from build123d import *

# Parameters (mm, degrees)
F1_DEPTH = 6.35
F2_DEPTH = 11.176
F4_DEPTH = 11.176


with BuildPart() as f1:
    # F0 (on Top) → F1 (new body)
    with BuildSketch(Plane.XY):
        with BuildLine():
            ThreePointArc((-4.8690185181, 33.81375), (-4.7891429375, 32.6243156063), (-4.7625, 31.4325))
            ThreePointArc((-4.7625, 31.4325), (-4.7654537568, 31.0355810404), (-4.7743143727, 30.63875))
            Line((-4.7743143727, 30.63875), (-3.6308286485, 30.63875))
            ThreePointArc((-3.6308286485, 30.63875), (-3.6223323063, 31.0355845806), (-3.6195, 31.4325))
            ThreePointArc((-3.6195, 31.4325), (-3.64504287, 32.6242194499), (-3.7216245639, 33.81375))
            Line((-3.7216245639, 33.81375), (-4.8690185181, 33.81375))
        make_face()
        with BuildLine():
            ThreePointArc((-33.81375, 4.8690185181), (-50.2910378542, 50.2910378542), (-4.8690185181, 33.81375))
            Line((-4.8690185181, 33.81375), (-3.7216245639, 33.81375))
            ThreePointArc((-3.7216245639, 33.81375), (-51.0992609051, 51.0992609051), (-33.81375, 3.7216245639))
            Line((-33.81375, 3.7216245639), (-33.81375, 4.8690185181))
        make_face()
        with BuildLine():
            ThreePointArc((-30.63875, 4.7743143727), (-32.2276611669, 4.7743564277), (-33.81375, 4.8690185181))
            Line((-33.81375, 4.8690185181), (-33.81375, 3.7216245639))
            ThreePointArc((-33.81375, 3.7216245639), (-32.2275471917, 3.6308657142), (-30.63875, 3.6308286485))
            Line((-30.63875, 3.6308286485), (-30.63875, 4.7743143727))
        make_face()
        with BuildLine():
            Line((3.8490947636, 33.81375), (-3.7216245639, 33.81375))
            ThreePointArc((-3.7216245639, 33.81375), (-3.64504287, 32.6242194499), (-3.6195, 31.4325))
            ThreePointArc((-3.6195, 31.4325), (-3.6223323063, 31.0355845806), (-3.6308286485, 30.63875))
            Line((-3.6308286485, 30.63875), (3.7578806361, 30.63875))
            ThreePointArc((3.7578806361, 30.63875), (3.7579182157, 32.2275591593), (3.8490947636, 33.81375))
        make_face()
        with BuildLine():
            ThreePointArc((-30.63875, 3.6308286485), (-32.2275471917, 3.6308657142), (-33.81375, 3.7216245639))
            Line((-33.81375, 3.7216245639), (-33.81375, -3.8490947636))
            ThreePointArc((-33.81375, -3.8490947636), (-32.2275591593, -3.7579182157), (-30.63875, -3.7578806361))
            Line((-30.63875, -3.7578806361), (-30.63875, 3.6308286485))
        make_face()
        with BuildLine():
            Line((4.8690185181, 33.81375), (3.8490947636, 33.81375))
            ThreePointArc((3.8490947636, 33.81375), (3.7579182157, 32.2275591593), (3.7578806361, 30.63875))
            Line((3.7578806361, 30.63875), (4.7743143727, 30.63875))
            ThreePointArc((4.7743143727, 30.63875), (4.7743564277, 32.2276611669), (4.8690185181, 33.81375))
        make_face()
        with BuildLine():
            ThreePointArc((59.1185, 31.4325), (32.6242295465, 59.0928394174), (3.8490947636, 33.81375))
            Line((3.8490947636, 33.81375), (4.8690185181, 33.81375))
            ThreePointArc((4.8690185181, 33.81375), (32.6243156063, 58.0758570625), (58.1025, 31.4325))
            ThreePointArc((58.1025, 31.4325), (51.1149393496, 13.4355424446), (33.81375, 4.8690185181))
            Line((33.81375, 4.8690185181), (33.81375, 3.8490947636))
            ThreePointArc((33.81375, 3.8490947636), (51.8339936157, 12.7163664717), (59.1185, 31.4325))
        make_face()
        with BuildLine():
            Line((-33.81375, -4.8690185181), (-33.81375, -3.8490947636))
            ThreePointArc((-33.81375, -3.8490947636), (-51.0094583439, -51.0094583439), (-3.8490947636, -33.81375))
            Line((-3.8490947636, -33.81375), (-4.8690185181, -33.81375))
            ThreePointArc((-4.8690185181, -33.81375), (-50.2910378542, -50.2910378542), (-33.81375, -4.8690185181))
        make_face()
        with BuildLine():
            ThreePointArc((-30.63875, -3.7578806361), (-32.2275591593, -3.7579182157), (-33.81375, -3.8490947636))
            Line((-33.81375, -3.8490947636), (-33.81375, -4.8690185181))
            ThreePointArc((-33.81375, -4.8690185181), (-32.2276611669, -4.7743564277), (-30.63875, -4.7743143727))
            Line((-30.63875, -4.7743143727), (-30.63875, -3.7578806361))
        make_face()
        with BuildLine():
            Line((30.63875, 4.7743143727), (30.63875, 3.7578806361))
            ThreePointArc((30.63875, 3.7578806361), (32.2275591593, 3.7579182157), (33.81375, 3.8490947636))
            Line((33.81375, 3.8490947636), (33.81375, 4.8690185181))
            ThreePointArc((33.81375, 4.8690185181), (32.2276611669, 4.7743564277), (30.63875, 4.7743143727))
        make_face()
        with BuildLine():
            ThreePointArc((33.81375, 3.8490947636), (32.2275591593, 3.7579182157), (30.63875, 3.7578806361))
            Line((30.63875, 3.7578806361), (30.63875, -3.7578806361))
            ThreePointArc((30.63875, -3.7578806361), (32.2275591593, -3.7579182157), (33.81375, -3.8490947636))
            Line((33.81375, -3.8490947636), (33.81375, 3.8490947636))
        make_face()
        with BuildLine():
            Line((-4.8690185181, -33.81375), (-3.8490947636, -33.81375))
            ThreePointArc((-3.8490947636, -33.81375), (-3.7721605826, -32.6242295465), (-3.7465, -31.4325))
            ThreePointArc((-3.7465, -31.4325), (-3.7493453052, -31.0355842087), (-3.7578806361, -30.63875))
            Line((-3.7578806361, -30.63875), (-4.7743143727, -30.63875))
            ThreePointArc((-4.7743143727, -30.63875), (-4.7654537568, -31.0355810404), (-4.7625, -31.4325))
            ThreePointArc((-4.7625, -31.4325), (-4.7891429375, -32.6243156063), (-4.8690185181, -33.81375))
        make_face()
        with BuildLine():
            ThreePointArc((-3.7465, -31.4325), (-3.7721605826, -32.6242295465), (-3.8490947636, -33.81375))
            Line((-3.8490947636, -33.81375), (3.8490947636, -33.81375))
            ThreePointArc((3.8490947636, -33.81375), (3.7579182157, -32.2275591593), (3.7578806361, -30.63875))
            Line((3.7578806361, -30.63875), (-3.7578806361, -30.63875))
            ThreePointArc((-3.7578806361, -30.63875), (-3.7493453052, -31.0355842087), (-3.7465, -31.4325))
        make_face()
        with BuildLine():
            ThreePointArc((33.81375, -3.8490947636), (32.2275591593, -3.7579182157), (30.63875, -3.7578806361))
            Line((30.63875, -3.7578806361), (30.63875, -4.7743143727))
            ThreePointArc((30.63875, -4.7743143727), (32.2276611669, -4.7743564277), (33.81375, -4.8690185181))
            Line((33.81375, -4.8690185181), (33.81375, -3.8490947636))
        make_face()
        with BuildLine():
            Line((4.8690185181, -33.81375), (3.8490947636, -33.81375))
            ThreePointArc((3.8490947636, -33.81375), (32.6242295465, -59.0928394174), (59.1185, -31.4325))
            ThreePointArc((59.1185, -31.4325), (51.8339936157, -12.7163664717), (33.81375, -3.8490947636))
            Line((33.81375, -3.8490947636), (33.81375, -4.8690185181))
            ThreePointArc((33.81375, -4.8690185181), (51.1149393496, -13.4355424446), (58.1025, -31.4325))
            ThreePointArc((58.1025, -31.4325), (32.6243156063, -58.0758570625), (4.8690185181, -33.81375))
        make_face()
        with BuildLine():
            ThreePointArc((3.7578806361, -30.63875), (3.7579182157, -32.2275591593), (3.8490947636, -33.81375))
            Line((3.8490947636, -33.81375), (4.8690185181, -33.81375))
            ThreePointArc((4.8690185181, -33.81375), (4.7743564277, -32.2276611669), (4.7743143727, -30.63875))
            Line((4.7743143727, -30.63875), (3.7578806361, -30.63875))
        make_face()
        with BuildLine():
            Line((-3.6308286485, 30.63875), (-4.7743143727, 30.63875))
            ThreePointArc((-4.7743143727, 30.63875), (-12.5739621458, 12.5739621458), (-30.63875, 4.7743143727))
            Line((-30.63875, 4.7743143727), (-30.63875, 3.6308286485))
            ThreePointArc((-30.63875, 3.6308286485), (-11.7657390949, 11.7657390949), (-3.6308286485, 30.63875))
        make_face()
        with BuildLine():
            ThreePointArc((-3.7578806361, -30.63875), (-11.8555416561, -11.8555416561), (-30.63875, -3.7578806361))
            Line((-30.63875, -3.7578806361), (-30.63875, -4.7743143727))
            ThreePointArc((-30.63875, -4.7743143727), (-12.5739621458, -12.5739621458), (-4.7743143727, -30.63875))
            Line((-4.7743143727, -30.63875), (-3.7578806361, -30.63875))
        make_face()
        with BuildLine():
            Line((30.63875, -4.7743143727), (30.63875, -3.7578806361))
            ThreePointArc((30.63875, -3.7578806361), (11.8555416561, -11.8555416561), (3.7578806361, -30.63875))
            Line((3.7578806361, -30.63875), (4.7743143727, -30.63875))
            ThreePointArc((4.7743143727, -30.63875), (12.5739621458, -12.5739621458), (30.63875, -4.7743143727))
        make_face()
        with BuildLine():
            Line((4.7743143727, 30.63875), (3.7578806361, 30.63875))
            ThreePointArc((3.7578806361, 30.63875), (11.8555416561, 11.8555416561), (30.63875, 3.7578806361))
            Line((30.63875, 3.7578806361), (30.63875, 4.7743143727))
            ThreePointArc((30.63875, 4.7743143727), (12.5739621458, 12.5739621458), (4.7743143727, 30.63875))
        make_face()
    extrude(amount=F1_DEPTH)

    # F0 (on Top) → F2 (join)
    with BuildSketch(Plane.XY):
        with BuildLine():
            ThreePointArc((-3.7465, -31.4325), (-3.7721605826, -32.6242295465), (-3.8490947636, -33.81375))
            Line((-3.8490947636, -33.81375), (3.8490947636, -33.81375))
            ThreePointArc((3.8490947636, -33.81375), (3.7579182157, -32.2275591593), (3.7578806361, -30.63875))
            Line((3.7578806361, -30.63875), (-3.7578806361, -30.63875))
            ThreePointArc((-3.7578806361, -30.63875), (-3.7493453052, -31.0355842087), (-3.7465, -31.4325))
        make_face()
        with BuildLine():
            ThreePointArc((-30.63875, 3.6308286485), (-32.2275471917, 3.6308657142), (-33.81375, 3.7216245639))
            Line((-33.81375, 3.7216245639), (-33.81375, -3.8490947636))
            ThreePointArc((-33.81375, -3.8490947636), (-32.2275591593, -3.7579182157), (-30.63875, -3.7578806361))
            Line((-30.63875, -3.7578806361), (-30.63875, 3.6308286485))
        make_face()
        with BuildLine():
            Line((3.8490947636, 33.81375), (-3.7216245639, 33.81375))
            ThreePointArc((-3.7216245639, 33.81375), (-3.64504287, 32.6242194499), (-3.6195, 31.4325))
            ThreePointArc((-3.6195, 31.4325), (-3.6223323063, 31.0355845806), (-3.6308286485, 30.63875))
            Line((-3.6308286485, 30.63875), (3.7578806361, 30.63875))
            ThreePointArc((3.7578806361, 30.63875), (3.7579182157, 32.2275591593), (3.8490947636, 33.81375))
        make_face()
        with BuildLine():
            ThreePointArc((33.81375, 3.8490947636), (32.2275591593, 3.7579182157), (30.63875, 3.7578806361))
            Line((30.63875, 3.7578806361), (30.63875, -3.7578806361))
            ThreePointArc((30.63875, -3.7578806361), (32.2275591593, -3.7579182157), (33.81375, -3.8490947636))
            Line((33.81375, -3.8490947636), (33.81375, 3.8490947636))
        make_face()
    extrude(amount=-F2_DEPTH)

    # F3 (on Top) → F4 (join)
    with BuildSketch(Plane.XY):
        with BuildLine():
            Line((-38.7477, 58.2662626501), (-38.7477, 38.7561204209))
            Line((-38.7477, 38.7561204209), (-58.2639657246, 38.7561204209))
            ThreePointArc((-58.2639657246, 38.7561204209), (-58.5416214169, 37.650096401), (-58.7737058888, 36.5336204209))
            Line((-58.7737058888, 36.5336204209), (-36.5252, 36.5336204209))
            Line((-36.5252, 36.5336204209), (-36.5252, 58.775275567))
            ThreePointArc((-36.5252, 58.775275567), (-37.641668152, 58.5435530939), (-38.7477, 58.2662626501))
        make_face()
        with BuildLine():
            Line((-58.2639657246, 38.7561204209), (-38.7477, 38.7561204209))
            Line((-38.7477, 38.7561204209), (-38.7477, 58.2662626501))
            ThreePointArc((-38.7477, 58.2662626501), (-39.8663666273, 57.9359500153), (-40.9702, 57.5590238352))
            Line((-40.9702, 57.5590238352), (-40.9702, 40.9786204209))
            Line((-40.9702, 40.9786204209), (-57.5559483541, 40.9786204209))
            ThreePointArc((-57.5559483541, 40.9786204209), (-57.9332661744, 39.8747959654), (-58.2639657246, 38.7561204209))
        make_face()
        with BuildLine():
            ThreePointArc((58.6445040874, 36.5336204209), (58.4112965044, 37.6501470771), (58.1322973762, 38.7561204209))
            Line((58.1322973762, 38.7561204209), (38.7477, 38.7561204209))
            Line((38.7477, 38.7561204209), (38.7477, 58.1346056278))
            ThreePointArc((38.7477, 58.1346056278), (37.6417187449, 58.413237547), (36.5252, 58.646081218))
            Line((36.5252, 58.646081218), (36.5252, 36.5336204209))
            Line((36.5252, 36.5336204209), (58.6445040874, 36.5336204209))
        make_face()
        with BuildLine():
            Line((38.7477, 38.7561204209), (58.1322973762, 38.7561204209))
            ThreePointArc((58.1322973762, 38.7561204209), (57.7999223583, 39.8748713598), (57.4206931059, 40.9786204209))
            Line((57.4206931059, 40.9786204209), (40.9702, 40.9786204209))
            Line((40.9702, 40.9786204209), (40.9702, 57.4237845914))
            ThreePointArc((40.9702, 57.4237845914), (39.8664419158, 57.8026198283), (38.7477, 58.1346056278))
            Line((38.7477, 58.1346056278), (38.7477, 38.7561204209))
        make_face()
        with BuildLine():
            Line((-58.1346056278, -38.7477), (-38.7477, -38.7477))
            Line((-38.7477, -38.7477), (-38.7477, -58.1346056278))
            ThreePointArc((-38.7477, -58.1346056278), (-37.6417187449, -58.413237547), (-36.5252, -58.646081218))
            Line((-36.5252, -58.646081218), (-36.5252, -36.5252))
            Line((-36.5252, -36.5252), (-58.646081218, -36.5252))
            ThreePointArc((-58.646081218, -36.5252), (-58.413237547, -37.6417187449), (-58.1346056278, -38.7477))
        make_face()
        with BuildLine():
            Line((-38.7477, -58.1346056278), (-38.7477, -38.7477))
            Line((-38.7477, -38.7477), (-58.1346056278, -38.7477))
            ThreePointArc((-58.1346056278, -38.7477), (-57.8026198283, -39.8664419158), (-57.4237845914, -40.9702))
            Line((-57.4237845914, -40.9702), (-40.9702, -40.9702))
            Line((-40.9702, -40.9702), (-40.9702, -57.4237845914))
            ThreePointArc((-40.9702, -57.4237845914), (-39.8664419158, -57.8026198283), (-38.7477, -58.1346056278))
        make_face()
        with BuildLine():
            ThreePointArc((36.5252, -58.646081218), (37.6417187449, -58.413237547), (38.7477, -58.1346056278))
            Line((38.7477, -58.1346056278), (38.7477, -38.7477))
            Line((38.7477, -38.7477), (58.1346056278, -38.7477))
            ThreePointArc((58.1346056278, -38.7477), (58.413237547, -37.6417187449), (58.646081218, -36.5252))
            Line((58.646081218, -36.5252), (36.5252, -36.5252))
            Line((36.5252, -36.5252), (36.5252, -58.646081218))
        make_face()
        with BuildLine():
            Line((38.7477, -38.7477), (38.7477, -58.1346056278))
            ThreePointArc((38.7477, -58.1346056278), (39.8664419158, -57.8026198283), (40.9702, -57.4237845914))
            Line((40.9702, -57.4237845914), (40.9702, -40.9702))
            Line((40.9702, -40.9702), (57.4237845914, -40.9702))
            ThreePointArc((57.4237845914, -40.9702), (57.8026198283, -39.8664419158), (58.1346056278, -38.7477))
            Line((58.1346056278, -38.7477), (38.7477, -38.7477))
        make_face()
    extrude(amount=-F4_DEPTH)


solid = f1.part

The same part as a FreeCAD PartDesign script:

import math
import FreeCAD as App
import Part
import Sketcher
Q = App.Units.Quantity

doc = App.newDocument("Part")
body = doc.addObject("PartDesign::Body", "Body")

# Sketch on XY plane
sketch1 = doc.addObject("Sketcher::SketchObject", "Sketch")
body.addObject(sketch1)
sketch1.AttachmentSupport = (doc.XY_Plane, [""])
sketch1.MapMode = "FlatFace"
sketch1.addGeometry([
    Part.LineSegment(App.Vector(-3.8, -33.8, 0), App.Vector(3.8, -33.8, 0)),  # 0
    Part.ArcOfCircle(Part.Circle(App.Vector(31.4, -31.4, 0), App.Vector(0, 0, 1), 27.7), math.radians(-175), math.radians(0)),  # 1
    Part.ArcOfCircle(Part.Circle(App.Vector(31.4, -31.4, 0), App.Vector(0, 0, 1), 27.7), math.radians(0), math.radians(85)),  # 2
    Part.LineSegment(App.Vector(33.8, -3.8, 0), App.Vector(33.8, 3.8, 0)),  # 3
    Part.ArcOfCircle(Part.Circle(App.Vector(31.4, 31.4, 0), App.Vector(0, 0, 1), 27.7), math.radians(-85), math.radians(0)),  # 4
    Part.ArcOfCircle(Part.Circle(App.Vector(31.4, 31.4, 0), App.Vector(0, 0, 1), 27.7), math.radians(0), math.radians(175)),  # 5
    Part.LineSegment(App.Vector(3.8, 33.8, 0), App.Vector(-3.7, 33.8, 0)),  # 6
    Part.ArcOfCircle(Part.Circle(App.Vector(-31.4, 31.4, 0), App.Vector(0, 0, 1), 27.8), math.radians(5), math.radians(265)),  # 7
    Part.LineSegment(App.Vector(-33.8, 3.7, 0), App.Vector(-33.8, -3.8, 0)),  # 8
    Part.ArcOfCircle(Part.Circle(App.Vector(-31.4, -31.4, 0), App.Vector(0, 0, 1), 27.7), math.radians(95), math.radians(355)),  # 9
    Part.ArcOfCircle(Part.Circle(App.Vector(31.4, -31.4, 0), App.Vector(0, 0, 1), 26.7), math.radians(-175), math.radians(85)),  # 10
    Part.ArcOfCircle(Part.Circle(App.Vector(31.4, -31.4, 0), App.Vector(0, 0, 1), 26.7), math.radians(178.29), math.radians(185.12)),  # 11
    Part.ArcOfCircle(Part.Circle(App.Vector(31.4, -31.4, 0), App.Vector(0, 0, 1), 26.7), math.radians(92), math.radians(178)),  # 12
    Part.ArcOfCircle(Part.Circle(App.Vector(31.4, -31.4, 0), App.Vector(0, 0, 1), 26.7), math.radians(84.88), math.radians(91.71)),  # 13
    Part.LineSegment(App.Vector(3.8, -30.6, 0), App.Vector(-3.8, -30.6, 0)),  # 14
    Part.ArcOfCircle(Part.Circle(App.Vector(-31.4, -31.4, 0), App.Vector(0, 0, 1), 27.7), math.radians(2), math.radians(88)),  # 15
    Part.LineSegment(App.Vector(-30.6, -3.8, 0), App.Vector(-30.6, 3.6, 0)),  # 16
    Part.ArcOfCircle(Part.Circle(App.Vector(-31.4, 31.4, 0), App.Vector(0, 0, 1), 27.8), math.radians(-88), math.radians(-2)),  # 17
    Part.LineSegment(App.Vector(-3.6, 30.6, 0), App.Vector(3.8, 30.6, 0)),  # 18
    Part.ArcOfCircle(Part.Circle(App.Vector(31.4, 31.4, 0), App.Vector(0, 0, 1), 27.7), math.radians(-178), math.radians(-92)),  # 19
    Part.LineSegment(App.Vector(30.6, 3.8, 0), App.Vector(30.6, -3.8, 0)),  # 20
    Part.ArcOfCircle(Part.Circle(App.Vector(31.4, -31.4, 0), App.Vector(0, 0, 1), 27.7), math.radians(92), math.radians(178)),  # 21
    Part.ArcOfCircle(Part.Circle(App.Vector(31.4, 31.4, 0), App.Vector(0, 0, 1), 26.7), math.radians(174.88), math.radians(181.71)),  # 22
    Part.ArcOfCircle(Part.Circle(App.Vector(31.4, 31.4, 0), App.Vector(0, 0, 1), 26.7), math.radians(-85), math.radians(175)),  # 23
    Part.ArcOfCircle(Part.Circle(App.Vector(31.4, 31.4, 0), App.Vector(0, 0, 1), 26.7), math.radians(-91.71), math.radians(-84.88)),  # 24
    Part.ArcOfCircle(Part.Circle(App.Vector(31.4, 31.4, 0), App.Vector(0, 0, 1), 26.7), math.radians(-178), math.radians(-92)),  # 25
    Part.ArcOfCircle(Part.Circle(App.Vector(-31.4, -31.4, 0), App.Vector(0, 0, 1), 26.7), math.radians(0), math.radians(1.71)),  # 26
    Part.ArcOfCircle(Part.Circle(App.Vector(-31.4, -31.4, 0), App.Vector(0, 0, 1), 26.7), math.radians(-5.12), math.radians(0)),  # 27
    Part.ArcOfCircle(Part.Circle(App.Vector(-31.4, -31.4, 0), App.Vector(0, 0, 1), 26.7), math.radians(95), math.radians(355)),  # 28
    Part.ArcOfCircle(Part.Circle(App.Vector(-31.4, -31.4, 0), App.Vector(0, 0, 1), 26.7), math.radians(88.29), math.radians(95.12)),  # 29
    Part.ArcOfCircle(Part.Circle(App.Vector(-31.4, -31.4, 0), App.Vector(0, 0, 1), 26.7), math.radians(2), math.radians(88)),  # 30
    Part.ArcOfCircle(Part.Circle(App.Vector(-31.4, 31.4, 0), App.Vector(0, 0, 1), 26.7), math.radians(-95.12), math.radians(-88.29)),  # 31
    Part.ArcOfCircle(Part.Circle(App.Vector(-31.4, 31.4, 0), App.Vector(0, 0, 1), 26.7), math.radians(5), math.radians(265)),  # 32
    Part.ArcOfCircle(Part.Circle(App.Vector(-31.4, 31.4, 0), App.Vector(0, 0, 1), 26.7), math.radians(0), math.radians(5.12)),  # 33
    Part.ArcOfCircle(Part.Circle(App.Vector(-31.4, 31.4, 0), App.Vector(0, 0, 1), 26.7), math.radians(-1.71), math.radians(0)),  # 34
    Part.ArcOfCircle(Part.Circle(App.Vector(-31.4, 31.4, 0), App.Vector(0, 0, 1), 26.7), math.radians(-88), math.radians(-2)),  # 35
], False)
sketch1.addConstraint([
    Sketcher.Constraint("Coincident", 0, 2, 1, 1),
    Sketcher.Constraint("Tangent", 1, 2, 2, 1),
    Sketcher.Constraint("Coincident", 2, 2, 3, 1),
    Sketcher.Constraint("Coincident", 3, 2, 4, 1),
    Sketcher.Constraint("Tangent", 4, 2, 5, 1),
    Sketcher.Constraint("Coincident", 5, 2, 6, 1),
    Sketcher.Constraint("Coincident", 6, 2, 7, 1),
    Sketcher.Constraint("Coincident", 7, 2, 8, 1),
    Sketcher.Constraint("Coincident", 8, 2, 9, 1),
    Sketcher.Constraint("Coincident", 9, 2, 0, 1),
    Sketcher.Constraint("Tangent", 10, 1, 11, 2),
    Sketcher.Constraint("Tangent", 11, 1, 12, 2),
    Sketcher.Constraint("Tangent", 12, 1, 13, 2),
    Sketcher.Constraint("Tangent", 13, 1, 10, 2),
    Sketcher.Constraint("Coincident", 14, 2, 15, 1),
    Sketcher.Constraint("Coincident", 15, 2, 16, 1),
    Sketcher.Constraint("Coincident", 16, 2, 17, 1),
    Sketcher.Constraint("Coincident", 17, 2, 18, 1),
    Sketcher.Constraint("Coincident", 18, 2, 19, 1),
    Sketcher.Constraint("Coincident", 19, 2, 20, 1),
    Sketcher.Constraint("Coincident", 20, 2, 21, 1),
    Sketcher.Constraint("Coincident", 21, 2, 14, 1),
    Sketcher.Constraint("Tangent", 22, 1, 23, 2),
    Sketcher.Constraint("Tangent", 23, 1, 24, 2),
    Sketcher.Constraint("Tangent", 24, 1, 25, 2),
    Sketcher.Constraint("Tangent", 25, 1, 22, 2),
    Sketcher.Constraint("Tangent", 26, 1, 27, 2),
    Sketcher.Constraint("Tangent", 27, 1, 28, 2),
    Sketcher.Constraint("Tangent", 28, 1, 29, 2),
    Sketcher.Constraint("Tangent", 29, 1, 30, 2),
    Sketcher.Constraint("Tangent", 30, 1, 26, 2),
    Sketcher.Constraint("Tangent", 31, 1, 32, 2),
    Sketcher.Constraint("Tangent", 32, 1, 33, 2),
    Sketcher.Constraint("Tangent", 33, 1, 34, 2),
    Sketcher.Constraint("Tangent", 34, 1, 35, 2),
    Sketcher.Constraint("Tangent", 35, 1, 31, 2),
    Sketcher.Constraint("Horizontal", 0),
    Sketcher.Constraint("Vertical", 3),
    Sketcher.Constraint("Horizontal", 6),
    Sketcher.Constraint("Vertical", 8),
    Sketcher.Constraint("Horizontal", 14),
    Sketcher.Constraint("Vertical", 16),
    Sketcher.Constraint("Horizontal", 18),
    Sketcher.Constraint("Vertical", 20),
    Sketcher.Constraint("Coincident", 10, 3, 1, 3),
    Sketcher.Constraint("Coincident", 15, 3, 9, 3),
    Sketcher.Constraint("Coincident", 17, 3, 7, 3),
    Sketcher.Constraint("Coincident", 19, 3, 4, 3),
    Sketcher.Constraint("Coincident", 21, 3, 1, 3),
    Sketcher.Constraint("Coincident", 22, 3, 4, 3),
    Sketcher.Constraint("Coincident", 26, 3, 9, 3),
    Sketcher.Constraint("Coincident", 28, 3, 9, 3),
    Sketcher.Constraint("Coincident", 31, 3, 7, 3),
    Sketcher.Constraint("Coincident", 33, 3, 7, 3),
    Sketcher.Constraint("Equal", 1, 2),
    Sketcher.Constraint("Equal", 2, 4),
    Sketcher.Constraint("Equal", 4, 5),
    Sketcher.Constraint("Equal", 5, 9),
    Sketcher.Constraint("Equal", 10, 11),
    Sketcher.Constraint("Equal", 9, 15),
    Sketcher.Constraint("Equal", 7, 17),
    Sketcher.Constraint("Equal", 15, 19),
    Sketcher.Constraint("Equal", 19, 21),
    Sketcher.Constraint("Equal", 13, 22),
    Sketcher.Constraint("Equal", 22, 23),
    Sketcher.Constraint("Equal", 25, 26),
    Sketcher.Constraint("Equal", 30, 31),
    Sketcher.Constraint("Symmetric", 1, 3, 7, 3, -1, 1),
    Sketcher.Constraint("Symmetric", 4, 3, 9, 3, -1, 1),
    Sketcher.Constraint("Symmetric", 4, 3, 7, 3, -2),
    Sketcher.Constraint("Horizontal", 30, 3, 1, 2),
    Sketcher.Constraint("Horizontal", 35, 3, 4, 2),
    Sketcher.Constraint("Horizontal", 2, 2, 8, 2),
    Sketcher.Constraint("Horizontal", 9, 2, 10, 1),
    Sketcher.Constraint("Horizontal", 11, 1, 14, 2),
    Sketcher.Constraint("Horizontal", 15, 2, 20, 2),
    Sketcher.Constraint("Horizontal", 6, 2, 22, 1),
    Sketcher.Constraint("Horizontal", 18, 2, 25, 1),
    Sketcher.Constraint("Horizontal", 1, 2, 26, 1),
    Sketcher.Constraint("Horizontal", 10, 1, 27, 1),
    Sketcher.Constraint("Horizontal", 13, 1, 28, 1),
    Sketcher.Constraint("Horizontal", 12, 1, 29, 1),
    Sketcher.Constraint("Horizontal", 21, 2, 30, 1),
    Sketcher.Constraint("Horizontal", 23, 1, 31, 1),
    Sketcher.Constraint("Horizontal", 22, 1, 32, 1),
    Sketcher.Constraint("Horizontal", 4, 2, 33, 1),
    Sketcher.Constraint("Horizontal", 25, 1, 34, 1),
    Sketcher.Constraint("Horizontal", 24, 1, 35, 1),
    Sketcher.Constraint("Vertical", 0, 2, 5, 2),
    Sketcher.Constraint("Vertical", 3, 2, 13, 1),
    Sketcher.Constraint("Vertical", 12, 1, 19, 2),
    Sketcher.Constraint("Vertical", 18, 2, 21, 2),
    Sketcher.Constraint("Vertical", 13, 1, 23, 1),
    Sketcher.Constraint("Vertical", 20, 2, 24, 1),
    Sketcher.Constraint("Equal", 0, 3),
    Sketcher.Constraint("Equal", 18, 16),
    Sketcher.Constraint("Radius", 1, Q("1.09 in")),
    Sketcher.Constraint("Radius", 10, Q("1.05 in")),
    Sketcher.Constraint("Radius", 7, Q("1.095 in")),
    Sketcher.Constraint("DistanceX", 26, 1, -1, 1, Q("0.1875 in")),
    Sketcher.Constraint("DistanceY", 1, 3, -1, 1, Q("1.2375 in")),
    Sketcher.Constraint("DistanceX", 0, 1, 0, 2, Q("7.69819 mm")),
    Sketcher.Constraint("DistanceX", 14, 2, 14, 1, Q("7.515761 mm")),
])
pad1 = doc.addObject("PartDesign::Pad", "Pad")
body.addObject(pad1)
pad1.Profile = sketch1
pad1.Length = Q("0.25 in")

# Sketch on XY plane
sketch2 = doc.addObject("Sketcher::SketchObject", "Sketch001")
body.addObject(sketch2)
sketch2.AttachmentSupport = (doc.XY_Plane, [""])
sketch2.MapMode = "FlatFace"
sketch2.addGeometry([
    Part.ArcOfCircle(Part.Circle(App.Vector(-31.4, -31.4, 0), App.Vector(0, 0, 1), 27.7), math.radians(-4.93), math.radians(0)),  # 0
    Part.LineSegment(App.Vector(-3.8, -33.8, 0), App.Vector(3.8, -33.8, 0)),  # 1
    Part.ArcOfCircle(Part.Circle(App.Vector(31.4, -31.4, 0), App.Vector(0, 0, 1), 27.7), math.radians(178.36), math.radians(184.93)),  # 2
    Part.LineSegment(App.Vector(3.8, -30.6, 0), App.Vector(-3.8, -30.6, 0)),  # 3
    Part.ArcOfCircle(Part.Circle(App.Vector(-31.4, -31.4, 0), App.Vector(0, 0, 1), 27.7), math.radians(0), math.radians(1.64)),  # 4
    Part.ArcOfCircle(Part.Circle(App.Vector(-31.4, 31.4, 0), App.Vector(0, 0, 1), 27.8), math.radians(-94.91), math.radians(-88.36)),  # 5
    Part.LineSegment(App.Vector(-33.8, 3.7, 0), App.Vector(-33.8, -3.8, 0)),  # 6
    Part.ArcOfCircle(Part.Circle(App.Vector(-31.4, -31.4, 0), App.Vector(0, 0, 1), 27.7), math.radians(88.36), math.radians(94.93)),  # 7
    Part.LineSegment(App.Vector(-30.6, -3.8, 0), App.Vector(-30.6, 3.6, 0)),  # 8
    Part.LineSegment(App.Vector(3.8, 33.8, 0), App.Vector(-3.7, 33.8, 0)),  # 9
    Part.ArcOfCircle(Part.Circle(App.Vector(-31.4, 31.4, 0), App.Vector(0, 0, 1), 27.8), math.radians(0), math.radians(4.91)),  # 10
    Part.ArcOfCircle(Part.Circle(App.Vector(-31.4, 31.4, 0), App.Vector(0, 0, 1), 27.8), math.radians(-1.64), math.radians(0)),  # 11
    Part.LineSegment(App.Vector(-3.6, 30.6, 0), App.Vector(3.8, 30.6, 0)),  # 12
    Part.ArcOfCircle(Part.Circle(App.Vector(31.4, 31.4, 0), App.Vector(0, 0, 1), 27.7), math.radians(175.07), math.radians(181.64)),  # 13
    Part.ArcOfCircle(Part.Circle(App.Vector(31.4, 31.4, 0), App.Vector(0, 0, 1), 27.7), math.radians(-91.64), math.radians(-85.07)),  # 14
    Part.LineSegment(App.Vector(30.6, 3.8, 0), App.Vector(30.6, -3.8, 0)),  # 15
    Part.ArcOfCircle(Part.Circle(App.Vector(31.4, -31.4, 0), App.Vector(0, 0, 1), 27.7), math.radians(85.07), math.radians(91.64)),  # 16
    Part.LineSegment(App.Vector(33.8, -3.8, 0), App.Vector(33.8, 3.8, 0)),  # 17
], False)
sketch2.addConstraint([
    Sketcher.Constraint("Coincident", 0, 1, 1, 1),
    Sketcher.Constraint("Coincident", 1, 2, 2, 2),
    Sketcher.Constraint("Coincident", 2, 1, 3, 1),
    Sketcher.Constraint("Coincident", 3, 2, 4, 2),
    Sketcher.Constraint("Tangent", 4, 1, 0, 2),
    Sketcher.Constraint("Coincident", 5, 1, 6, 1),
    Sketcher.Constraint("Coincident", 6, 2, 7, 2),
    Sketcher.Constraint("Coincident", 7, 1, 8, 1),
    Sketcher.Constraint("Coincident", 8, 2, 5, 2),
    Sketcher.Constraint("Coincident", 9, 2, 10, 2),
    Sketcher.Constraint("Tangent", 10, 1, 11, 2),
    Sketcher.Constraint("Coincident", 11, 1, 12, 1),
    Sketcher.Constraint("Coincident", 12, 2, 13, 2),
    Sketcher.Constraint("Coincident", 13, 1, 9, 1),
    Sketcher.Constraint("Coincident", 14, 1, 15, 1),
    Sketcher.Constraint("Coincident", 15, 2, 16, 2),
    Sketcher.Constraint("Coincident", 16, 1, 17, 1),
    Sketcher.Constraint("Coincident", 17, 2, 14, 2),
    Sketcher.Constraint("Horizontal", 1),
    Sketcher.Constraint("Horizontal", 3),
    Sketcher.Constraint("Vertical", 6),
    Sketcher.Constraint("Vertical", 8),
    Sketcher.Constraint("Horizontal", 9),
    Sketcher.Constraint("Horizontal", 12),
    Sketcher.Constraint("Vertical", 15),
    Sketcher.Constraint("Vertical", 17),
    Sketcher.Constraint("Coincident", 7, 3, 0, 3),
    Sketcher.Constraint("Coincident", 10, 3, 5, 3),
    Sketcher.Constraint("Coincident", 14, 3, 13, 3),
    Sketcher.Constraint("Coincident", 16, 3, 2, 3),
    Sketcher.Constraint("Equal", 0, 2),
    Sketcher.Constraint("Equal", 2, 4),
    Sketcher.Constraint("Equal", 4, 7),
    Sketcher.Constraint("Equal", 5, 10),
    Sketcher.Constraint("Equal", 10, 11),
    Sketcher.Constraint("Equal", 7, 13),
    Sketcher.Constraint("Equal", 13, 14),
    Sketcher.Constraint("Equal", 14, 16),
    Sketcher.Constraint("Symmetric", 2, 3, 5, 3, -1, 1),
    Sketcher.Constraint("Symmetric", 0, 3, 13, 3, -1, 1),
    Sketcher.Constraint("Symmetric", 0, 3, 2, 3, -2),
    Sketcher.Constraint("Horizontal", 16, 3, 4, 1),
    Sketcher.Constraint("Horizontal", 14, 3, 10, 1),
    Sketcher.Constraint("Horizontal", 7, 1, 15, 2),
    Sketcher.Constraint("Horizontal", 6, 2, 16, 1),
    Sketcher.Constraint("Vertical", 2, 1, 12, 2),
    Sketcher.Constraint("Vertical", 1, 2, 13, 1),
    Sketcher.Constraint("Equal", 9, 6),
    Sketcher.Constraint("Equal", 12, 8),
    Sketcher.Constraint("Radius", 0, Q("1.09 in")),
    Sketcher.Constraint("Radius", 5, Q("1.095 in")),
    Sketcher.Constraint("DistanceX", 10, 1, 13, 3, Q("1.38 in")),
    Sketcher.Constraint("DistanceY", 4, 3, 5, 3, Q("2.475 in")),
    Sketcher.Constraint("DistanceY", 0, 1, 4, 3, Q("0.09375 in")),
    Sketcher.Constraint("DistanceY", 1, 2, 2, 1, Q("0.125 in")),
])
pad2 = doc.addObject("PartDesign::Pad", "Pad001")
body.addObject(pad2)
pad2.Profile = sketch2
pad2.Length = Q("0.44 in")
pad2.Reversed = True

# Sketch on XY plane
sketch3 = doc.addObject("Sketcher::SketchObject", "Sketch002")
body.addObject(sketch3)
sketch3.AttachmentSupport = (doc.XY_Plane, [""])
sketch3.MapMode = "FlatFace"
sketch3.addGeometry([
    Part.ArcOfCircle(Part.Circle(App.Vector(-31.4, 31.4, 0), App.Vector(0, 0, 1), 27.8), math.radians(164.73), math.radians(169.43)),  # 0
    Part.LineSegment(App.Vector(-58.8, 36.5, 0), App.Vector(-36.5, 36.5, 0)),  # 1
    Part.LineSegment(App.Vector(-36.5, 36.5, 0), App.Vector(-36.5, 58.8, 0)),  # 2
    Part.ArcOfCircle(Part.Circle(App.Vector(-31.4, 31.4, 0), App.Vector(0, 0, 1), 27.8), math.radians(100.55), math.radians(105.25)),  # 3
    Part.ArcOfCircle(Part.Circle(App.Vector(-31.4, 31.4, 0), App.Vector(0, 0, 1), 27.8), math.radians(105.25), math.radians(110.06)),  # 4
    Part.LineSegment(App.Vector(-41, 57.6, 0), App.Vector(-41, 41, 0)),  # 5
    Part.LineSegment(App.Vector(-41, 41, 0), App.Vector(-57.6, 41, 0)),  # 6
    Part.ArcOfCircle(Part.Circle(App.Vector(-31.4, 31.4, 0), App.Vector(0, 0, 1), 27.8), math.radians(159.93), math.radians(164.73)),  # 7
    Part.ArcOfCircle(Part.Circle(App.Vector(31.4, 31.4, 0), App.Vector(0, 0, 1), 27.7), math.radians(10.62), math.radians(15.34)),  # 8
    Part.ArcOfCircle(Part.Circle(App.Vector(31.4, 31.4, 0), App.Vector(0, 0, 1), 27.7), math.radians(15.34), math.radians(20.17)),  # 9
    Part.LineSegment(App.Vector(57.4, 41, 0), App.Vector(41, 41, 0)),  # 10
    Part.LineSegment(App.Vector(41, 41, 0), App.Vector(41, 57.4, 0)),  # 11
    Part.ArcOfCircle(Part.Circle(App.Vector(31.4, 31.4, 0), App.Vector(0, 0, 1), 27.7), math.radians(69.85), math.radians(74.68)),  # 12
    Part.ArcOfCircle(Part.Circle(App.Vector(31.4, 31.4, 0), App.Vector(0, 0, 1), 27.7), math.radians(74.68), math.radians(79.4)),  # 13
    Part.LineSegment(App.Vector(36.5, 58.6, 0), App.Vector(36.5, 36.5, 0)),  # 14
    Part.LineSegment(App.Vector(36.5, 36.5, 0), App.Vector(58.6, 36.5, 0)),  # 15
    Part.ArcOfCircle(Part.Circle(App.Vector(-31.4, -31.4, 0), App.Vector(0, 0, 1), 27.7), math.radians(-105.32), math.radians(-100.6)),  # 16
    Part.LineSegment(App.Vector(-36.5, -58.6, 0), App.Vector(-36.5, -36.5, 0)),  # 17
    Part.LineSegment(App.Vector(-36.5, -36.5, 0), App.Vector(-58.6, -36.5, 0)),  # 18
    Part.ArcOfCircle(Part.Circle(App.Vector(-31.4, -31.4, 0), App.Vector(0, 0, 1), 27.7), math.radians(-169.4), math.radians(-164.68)),  # 19
    Part.ArcOfCircle(Part.Circle(App.Vector(-31.4, -31.4, 0), App.Vector(0, 0, 1), 27.7), math.radians(-164.68), math.radians(-159.85)),  # 20
    Part.LineSegment(App.Vector(-57.4, -41, 0), App.Vector(-41, -41, 0)),  # 21
    Part.LineSegment(App.Vector(-41, -41, 0), App.Vector(-41, -57.4, 0)),  # 22
    Part.ArcOfCircle(Part.Circle(App.Vector(-31.4, -31.4, 0), App.Vector(0, 0, 1), 27.7), math.radians(-110.15), math.radians(-105.32)),  # 23
    Part.ArcOfCircle(Part.Circle(App.Vector(31.4, -31.4, 0), App.Vector(0, 0, 1), 27.7), math.radians(-79.4), math.radians(-74.68)),  # 24
    Part.ArcOfCircle(Part.Circle(App.Vector(31.4, -31.4, 0), App.Vector(0, 0, 1), 27.7), math.radians(-74.68), math.radians(-69.85)),  # 25
    Part.LineSegment(App.Vector(41, -57.4, 0), App.Vector(41, -41, 0)),  # 26
    Part.LineSegment(App.Vector(41, -41, 0), App.Vector(57.4, -41, 0)),  # 27
    Part.ArcOfCircle(Part.Circle(App.Vector(31.4, -31.4, 0), App.Vector(0, 0, 1), 27.7), math.radians(-20.15), math.radians(-15.32)),  # 28
    Part.ArcOfCircle(Part.Circle(App.Vector(31.4, -31.4, 0), App.Vector(0, 0, 1), 27.7), math.radians(-15.32), math.radians(-10.6)),  # 29
    Part.LineSegment(App.Vector(58.6, -36.5, 0), App.Vector(36.5, -36.5, 0)),  # 30
    Part.LineSegment(App.Vector(36.5, -36.5, 0), App.Vector(36.5, -58.6, 0)),  # 31
], False)
sketch3.addConstraint([
    Sketcher.Constraint("Coincident", 0, 2, 1, 1),
    Sketcher.Constraint("Coincident", 1, 2, 2, 1),
    Sketcher.Constraint("Coincident", 2, 2, 3, 1),
    Sketcher.Constraint("Tangent", 3, 2, 4, 1),
    Sketcher.Constraint("Coincident", 4, 2, 5, 1),
    Sketcher.Constraint("Coincident", 5, 2, 6, 1),
    Sketcher.Constraint("Coincident", 6, 2, 7, 1),
    Sketcher.Constraint("Tangent", 7, 2, 0, 1),
    Sketcher.Constraint("Tangent", 8, 2, 9, 1),
    Sketcher.Constraint("Coincident", 9, 2, 10, 1),
    Sketcher.Constraint("Coincident", 10, 2, 11, 1),
    Sketcher.Constraint("Coincident", 11, 2, 12, 1),
    Sketcher.Constraint("Tangent", 12, 2, 13, 1),
    Sketcher.Constraint("Coincident", 13, 2, 14, 1),
    Sketcher.Constraint("Coincident", 14, 2, 15, 1),
    Sketcher.Constraint("Coincident", 15, 2, 8, 1),
    Sketcher.Constraint("Coincident", 16, 2, 17, 1),
    Sketcher.Constraint("Coincident", 17, 2, 18, 1),
    Sketcher.Constraint("Coincident", 18, 2, 19, 1),
    Sketcher.Constraint("Tangent", 19, 2, 20, 1),
    Sketcher.Constraint("Coincident", 20, 2, 21, 1),
    Sketcher.Constraint("Coincident", 21, 2, 22, 1),
    Sketcher.Constraint("Coincident", 22, 2, 23, 1),
    Sketcher.Constraint("Tangent", 23, 2, 16, 1),
    Sketcher.Constraint("Tangent", 24, 2, 25, 1),
    Sketcher.Constraint("Coincident", 25, 2, 26, 1),
    Sketcher.Constraint("Coincident", 26, 2, 27, 1),
    Sketcher.Constraint("Coincident", 27, 2, 28, 1),
    Sketcher.Constraint("Tangent", 28, 2, 29, 1),
    Sketcher.Constraint("Coincident", 29, 2, 30, 1),
    Sketcher.Constraint("Coincident", 30, 2, 31, 1),
    Sketcher.Constraint("Coincident", 31, 2, 24, 1),
    Sketcher.Constraint("Horizontal", 1),
    Sketcher.Constraint("Vertical", 2),
    Sketcher.Constraint("Vertical", 5),
    Sketcher.Constraint("Horizontal", 6),
    Sketcher.Constraint("Horizontal", 10),
    Sketcher.Constraint("Vertical", 11),
    Sketcher.Constraint("Vertical", 14),
    Sketcher.Constraint("Horizontal", 15),
    Sketcher.Constraint("Vertical", 17),
    Sketcher.Constraint("Horizontal", 18),
    Sketcher.Constraint("Horizontal", 21),
    Sketcher.Constraint("Vertical", 22),
    Sketcher.Constraint("Vertical", 26),
    Sketcher.Constraint("Horizontal", 27),
    Sketcher.Constraint("Horizontal", 30),
    Sketcher.Constraint("Vertical", 31),
    Sketcher.Constraint("Coincident", 3, 3, 0, 3),
    Sketcher.Constraint("Coincident", 12, 3, 8, 3),
    Sketcher.Constraint("Coincident", 19, 3, 16, 3),
    Sketcher.Constraint("Coincident", 28, 3, 24, 3),
    Sketcher.Constraint("Equal", 0, 3),
    Sketcher.Constraint("Equal", 3, 4),
    Sketcher.Constraint("Equal", 4, 7),
    Sketcher.Constraint("Equal", 8, 9),
    Sketcher.Constraint("Equal", 9, 12),
    Sketcher.Constraint("Equal", 12, 13),
    Sketcher.Constraint("Equal", 13, 16),
    Sketcher.Constraint("Equal", 16, 19),
    Sketcher.Constraint("Equal", 19, 20),
    Sketcher.Constraint("Equal", 20, 23),
    Sketcher.Constraint("Equal", 23, 24),
    Sketcher.Constraint("Equal", 24, 25),
    Sketcher.Constraint("Equal", 25, 28),
    Sketcher.Constraint("Equal", 28, 29),
    Sketcher.Constraint("Symmetric", 8, 3, 16, 3, -1, 1),
    Sketcher.Constraint("Symmetric", 0, 3, 24, 3, -1, 1),
    Sketcher.Constraint("Symmetric", 0, 3, 8, 3, -2),
    Sketcher.Constraint("Symmetric", 5, 2, 10, 2, -2),
    Sketcher.Constraint("Symmetric", 1, 2, 14, 2, -2),
    Sketcher.Constraint("Symmetric", 21, 2, 26, 2, -2),
    Sketcher.Constraint("Symmetric", 17, 2, 30, 2, -2),
    Sketcher.Constraint("Horizontal", 7, 2, 8, 2),
    Sketcher.Constraint("Horizontal", 23, 2, 24, 2),
    Sketcher.Constraint("Horizontal", 19, 2, 28, 2),
    Sketcher.Constraint("Vertical", 2, 2, 16, 2),
    Sketcher.Constraint("Vertical", 5, 2, 21, 2),
    Sketcher.Constraint("Vertical", 3, 2, 23, 2),
    Sketcher.Constraint("Vertical", 12, 2, 24, 2),
    Sketcher.Constraint("Equal", 30, 17),
    Sketcher.Constraint("Equal", 27, 22),
    Sketcher.Constraint("Radius", 8, Q("1.09 in")),
    Sketcher.Constraint("Radius", 0, Q("1.095 in")),
    Sketcher.Constraint("DistanceX", 1, 2, -1, 1, Q("1.438 in")),
    Sketcher.Constraint("DistanceX", 4, 2, -1, 1, Q("1.613 in")),
    Sketcher.Constraint("DistanceY", 17, 2, -1, 1, Q("1.438 in")),
    Sketcher.Constraint("DistanceX", 7, 3, 8, 3, Q("2.475 in")),
    Sketcher.Constraint("DistanceX", 3, 2, 3, 3, Q("0.288 in")),
    Sketcher.Constraint("DistanceY", 1, 2, 5, 2, Q("0.175 in")),
    Sketcher.Constraint("DistanceY", 19, 2, 19, 3, Q("0.288 in")),
    Sketcher.Constraint("DistanceY", 0, 2, 7, 2, Q("0.0875 in")),
    Sketcher.Constraint("DistanceX", 6, 2, 6, 1, Q("16.585748 mm")),
])
pad3 = doc.addObject("PartDesign::Pad", "Pad002")
body.addObject(pad3)
pad3.Profile = sketch3
pad3.Length = Q("0.44 in")
pad3.Reversed = True

doc.recompute()
